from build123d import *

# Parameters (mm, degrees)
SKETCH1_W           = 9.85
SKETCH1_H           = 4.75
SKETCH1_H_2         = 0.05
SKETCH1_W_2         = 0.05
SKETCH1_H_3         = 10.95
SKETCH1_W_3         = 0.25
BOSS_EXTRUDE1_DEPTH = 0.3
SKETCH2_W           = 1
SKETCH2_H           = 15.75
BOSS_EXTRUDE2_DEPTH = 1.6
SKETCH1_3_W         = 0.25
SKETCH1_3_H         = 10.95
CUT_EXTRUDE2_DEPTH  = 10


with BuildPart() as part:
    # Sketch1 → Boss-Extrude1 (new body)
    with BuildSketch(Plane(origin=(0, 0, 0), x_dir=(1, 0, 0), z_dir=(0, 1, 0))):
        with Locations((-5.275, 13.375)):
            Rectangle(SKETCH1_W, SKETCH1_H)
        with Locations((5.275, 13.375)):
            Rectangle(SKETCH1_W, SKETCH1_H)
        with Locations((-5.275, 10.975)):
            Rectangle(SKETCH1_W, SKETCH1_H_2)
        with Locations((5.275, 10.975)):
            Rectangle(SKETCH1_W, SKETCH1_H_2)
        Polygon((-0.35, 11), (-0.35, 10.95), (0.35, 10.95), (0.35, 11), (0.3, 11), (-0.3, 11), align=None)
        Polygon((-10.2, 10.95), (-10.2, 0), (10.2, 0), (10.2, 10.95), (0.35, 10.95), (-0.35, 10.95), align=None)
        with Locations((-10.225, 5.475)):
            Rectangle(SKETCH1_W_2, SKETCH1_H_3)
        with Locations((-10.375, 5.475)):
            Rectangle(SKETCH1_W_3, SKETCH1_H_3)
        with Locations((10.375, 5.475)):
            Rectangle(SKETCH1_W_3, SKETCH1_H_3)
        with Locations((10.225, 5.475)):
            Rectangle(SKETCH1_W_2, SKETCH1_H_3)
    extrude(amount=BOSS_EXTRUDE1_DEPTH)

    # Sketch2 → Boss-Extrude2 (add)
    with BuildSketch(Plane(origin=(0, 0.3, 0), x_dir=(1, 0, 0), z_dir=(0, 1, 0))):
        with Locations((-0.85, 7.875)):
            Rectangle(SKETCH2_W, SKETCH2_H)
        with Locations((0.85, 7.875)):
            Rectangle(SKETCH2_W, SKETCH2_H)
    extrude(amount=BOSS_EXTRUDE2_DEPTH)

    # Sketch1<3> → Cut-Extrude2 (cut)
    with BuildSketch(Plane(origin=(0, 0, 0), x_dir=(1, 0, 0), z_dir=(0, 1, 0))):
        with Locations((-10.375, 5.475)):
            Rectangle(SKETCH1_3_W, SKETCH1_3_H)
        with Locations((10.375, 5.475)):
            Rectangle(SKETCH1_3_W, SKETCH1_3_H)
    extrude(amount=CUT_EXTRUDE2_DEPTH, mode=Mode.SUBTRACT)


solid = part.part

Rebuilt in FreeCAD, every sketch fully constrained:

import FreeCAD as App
import Part
import Sketcher
from FreeCAD import Vector
Q = App.Units.Quantity

doc = App.newDocument("Part")
body = doc.addObject("PartDesign::Body", "Body")

sketch1 = body.newObject("Sketcher::SketchObject", "Sketch")
sketch1.AttachmentSupport = (doc.getObject("XZ_Plane"), [""])
sketch1.MapMode = "FlatFace"
sketch1.addGeometry(Part.LineSegment(Vector(-10.2, -15.75, 0), Vector(-10.2, -10.95, 0)), False)
sketch1.addGeometry(Part.LineSegment(Vector(-10.2, -10.95, 0), Vector(-10.5, -10.95, 0)), False)
sketch1.addGeometry(Part.LineSegment(Vector(-10.5, -10.95, 0), Vector(-10.5, 0, 0)), False)
sketch1.addGeometry(Part.LineSegment(Vector(-10.5, 0, 0), Vector(10.5, 0, 0)), False)
sketch1.addGeometry(Part.LineSegment(Vector(10.5, 0, 0), Vector(10.5, -10.95, 0)), False)
sketch1.addGeometry(Part.LineSegment(Vector(10.5, -10.95, 0), Vector(10.2, -10.95, 0)), False)
sketch1.addGeometry(Part.LineSegment(Vector(10.2, -10.95, 0), Vector(10.2, -15.75, 0)), False)
sketch1.addGeometry(Part.LineSegment(Vector(10.2, -15.75, 0), Vector(0.35, -15.75, 0)), False)
sketch1.addGeometry(Part.LineSegment(Vector(0.35, -15.75, 0), Vector(0.35, -11, 0)), False)
sketch1.addGeometry(Part.LineSegment(Vector(0.35, -11, 0), Vector(-0.35, -11, 0)), False)
sketch1.addGeometry(Part.LineSegment(Vector(-0.35, -11, 0), Vector(-0.35, -15.75, 0)), False)
sketch1.addGeometry(Part.LineSegment(Vector(-0.35, -15.75, 0), Vector(-10.2, -15.75, 0)), False)
sketch1.addConstraint(Sketcher.Constraint("Coincident", 0, 2, 1, 1))
sketch1.addConstraint(Sketcher.Constraint("Coincident", 1, 2, 2, 1))
sketch1.addConstraint(Sketcher.Constraint("Coincident", 2, 2, 3, 1))
sketch1.addConstraint(Sketcher.Constraint("Coincident", 3, 2, 4, 1))
sketch1.addConstraint(Sketcher.Constraint("Coincident", 4, 2, 5, 1))
sketch1.addConstraint(Sketcher.Constraint("Coincident", 5, 2, 6, 1))
sketch1.addConstraint(Sketcher.Constraint("Coincident", 6, 2, 7, 1))
sketch1.addConstraint(Sketcher.Constraint("Coincident", 7, 2, 8, 1))
sketch1.addConstraint(Sketcher.Constraint("Coincident", 8, 2, 9, 1))
sketch1.addConstraint(Sketcher.Constraint("Coincident", 9, 2, 10, 1))
sketch1.addConstraint(Sketcher.Constraint("Coincident", 10, 2, 11, 1))
sketch1.addConstraint(Sketcher.Constraint("Coincident", 11, 2, 0, 1))
sketch1.addConstraint(Sketcher.Constraint("Vertical", 0))
sketch1.addConstraint(Sketcher.Constraint("Horizontal", 1))
sketch1.addConstraint(Sketcher.Constraint("Vertical", 2))
sketch1.addConstraint(Sketcher.Constraint("Horizontal", 3))
sketch1.addConstraint(Sketcher.Constraint("Vertical", 4))
sketch1.addConstraint(Sketcher.Constraint("Horizontal", 5))
sketch1.addConstraint(Sketcher.Constraint("Vertical", 6))
sketch1.addConstraint(Sketcher.Constraint("Horizontal", 7))
sketch1.addConstraint(Sketcher.Constraint("Vertical", 8))
sketch1.addConstraint(Sketcher.Constraint("Horizontal", 9))
sketch1.addConstraint(Sketcher.Constraint("Vertical", 10))
sketch1.addConstraint(Sketcher.Constraint("Horizontal", 11))
sketch1.addConstraint(Sketcher.Constraint("Symmetric", 2, 2, 3, 2, -1, 1))
sketch1.addConstraint(Sketcher.Constraint("Symmetric", 0, 2, 5, 2, -2))
sketch1.addConstraint(Sketcher.Constraint("Symmetric", 7, 2, 10, 2, -2))
sketch1.addConstraint(Sketcher.Constraint("DistanceX", 3, 1, 3, 2, Q("21 mm")))
sketch1.addConstraint(Sketcher.Constraint("DistanceX", 1, 2, 1, 1, Q("0.3 mm")))
sketch1.addConstraint(Sketcher.Constraint("DistanceX", 9, 2, 9, 1, Q("0.7 mm")))
sketch1.addConstraint(Sketcher.Constraint("DistanceY", 0, 1, 0, 2, Q("4.8 mm")))
sketch1.addConstraint(Sketcher.Constraint("DistanceY", 8, 2, -1, 1, Q("11 mm")))
sketch1.addConstraint(Sketcher.Constraint("DistanceY", 2, 1, 2, 2, Q("10.95 mm")))
pad1 = body.newObject("PartDesign::Pad", "Pad")
pad1.Profile = sketch1
pad1.Length = 0.3
pad1.Reversed = True

sketch2 = body.newObject("Sketcher::SketchObject", "Sketch001")
sketch2.AttachmentSupport = (doc.getObject("XZ_Plane"), [""])
sketch2.MapMode = "FlatFace"
sketch2.AttachmentOffset = App.Placement(Vector(0, 0, -0.3), App.Rotation())
sketch2.addGeometry(Part.LineSegment(Vector(-1.35, -15.75, 0), Vector(-1.35, 0, 0)), False)
sketch2.addGeometry(Part.LineSegment(Vector(-1.35, 0, 0), Vector(-0.35, 0, 0)), False)
sketch2.addGeometry(Part.LineSegment(Vector(-0.35, 0, 0), Vector(-0.35, -15.75, 0)), False)
sketch2.addGeometry(Part.LineSegment(Vector(-0.35, -15.75, 0), Vector(-1.35, -15.75, 0)), False)
sketch2.addGeometry(Part.LineSegment(Vector(0.35, -15.75, 0), Vector(0.35, 0, 0)), False)
sketch2.addGeometry(Part.LineSegment(Vector(0.35, 0, 0), Vector(1.35, 0, 0)), False)
sketch2.addGeometry(Part.LineSegment(Vector(1.35, 0, 0), Vector(1.35, -15.75, 0)), False)
sketch2.addGeometry(Part.LineSegment(Vector(1.35, -15.75, 0), Vector(0.35, -15.75, 0)), False)
sketch2.addConstraint(Sketcher.Constraint("Coincident", 0, 2, 1, 1))
sketch2.addConstraint(Sketcher.Constraint("Coincident", 1, 2, 2, 1))
sketch2.addConstraint(Sketcher.Constraint("Coincident", 2, 2, 3, 1))
sketch2.addConstraint(Sketcher.Constraint("Coincident", 3, 2, 0, 1))
sketch2.addConstraint(Sketcher.Constraint("Coincident", 4, 2, 5, 1))
sketch2.addConstraint(Sketcher.Constraint("Coincident", 5, 2, 6, 1))
sketch2.addConstraint(Sketcher.Constraint("Coincident", 6, 2, 7, 1))
sketch2.addConstraint(Sketcher.Constraint("Coincident", 7, 2, 4, 1))
sketch2.addConstraint(Sketcher.Constraint("Vertical", 0))
sketch2.addConstraint(Sketcher.Constraint("Horizontal", 1))
sketch2.addConstraint(Sketcher.Constraint("Vertical", 2))
sketch2.addConstraint(Sketcher.Constraint("Horizontal", 3))
sketch2.addConstraint(Sketcher.Constraint("Vertical", 4))
sketch2.addConstraint(Sketcher.Constraint("Horizontal", 5))
sketch2.addConstraint(Sketcher.Constraint("Vertical", 6))
sketch2.addConstraint(Sketcher.Constraint("Horizontal", 7))
sketch2.addConstraint(Sketcher.Constraint("Symmetric", 1, 2, 4, 2, -1, 1))
sketch2.addConstraint(Sketcher.Constraint("Symmetric", 0, 2, 5, 2, -2))
sketch2.addConstraint(Sketcher.Constraint("Horizontal", 3, 2, 6, 2))
sketch2.addConstraint(Sketcher.Constraint("DistanceX", 1, 1, 1, 2, Q("1 mm")))
sketch2.addConstraint(Sketcher.Constraint("DistanceY", 0, 1, 0, 2, Q("15.75 mm")))
sketch2.addConstraint(Sketcher.Constraint("DistanceX", 1, 2, 4, 2, Q("0.7 mm")))
pad2 = body.newObject("PartDesign::Pad", "Pad001")
pad2.Profile = sketch2
pad2.Length = 1.6
pad2.Reversed = True

sketch3 = body.newObject("Sketcher::SketchObject", "Sketch002")
sketch3.AttachmentSupport = (doc.getObject("XZ_Plane"), [""])
sketch3.MapMode = "FlatFace"
sketch3.addGeometry(Part.LineSegment(Vector(-10.5, -10.95, 0), Vector(-10.5, 0, 0)), False)
sketch3.addGeometry(Part.LineSegment(Vector(-10.5, 0, 0), Vector(-10.25, 0, 0)), False)
sketch3.addGeometry(Part.LineSegment(Vector(-10.25, 0, 0), Vector(-10.25, -10.95, 0)), False)
sketch3.addGeometry(Part.LineSegment(Vector(-10.25, -10.95, 0), Vector(-10.5, -10.95, 0)), False)
sketch3.addGeometry(Part.LineSegment(Vector(10.25, -10.95, 0), Vector(10.25, 0, 0)), False)
sketch3.addGeometry(Part.LineSegment(Vector(10.25, 0, 0), Vector(10.5, 0, 0)), False)
sketch3.addGeometry(Part.LineSegment(Vector(10.5, 0, 0), Vector(10.5, -10.95, 0)), False)
sketch3.addGeometry(Part.LineSegment(Vector(10.5, -10.95, 0), Vector(10.25, -10.95, 0)), False)
sketch3.addConstraint(Sketcher.Constraint("Coincident", 0, 2, 1, 1))
sketch3.addConstraint(Sketcher.Constraint("Coincident", 1, 2, 2, 1))
sketch3.addConstraint(Sketcher.Constraint("Coincident", 2, 2, 3, 1))
sketch3.addConstraint(Sketcher.Constraint("Coincident", 3, 2, 0, 1))
sketch3.addConstraint(Sketcher.Constraint("Coincident", 4, 2, 5, 1))
sketch3.addConstraint(Sketcher.Constraint("Coincident", 5, 2, 6, 1))
sketch3.addConstraint(Sketcher.Constraint("Coincident", 6, 2, 7, 1))
sketch3.addConstraint(Sketcher.Constraint("Coincident", 7, 2, 4, 1))
sketch3.addConstraint(Sketcher.Constraint("Vertical", 0))
sketch3.addConstraint(Sketcher.Constraint("Horizontal", 1))
sketch3.addConstraint(Sketcher.Constraint("Vertical", 2))
sketch3.addConstraint(Sketcher.Constraint("Horizontal", 3))
sketch3.addConstraint(Sketcher.Constraint("Vertical", 4))
sketch3.addConstraint(Sketcher.Constraint("Horizontal", 5))
sketch3.addConstraint(Sketcher.Constraint("Vertical", 6))
sketch3.addConstraint(Sketcher.Constraint("Horizontal", 7))
sketch3.addConstraint(Sketcher.Constraint("Symmetric", 1, 2, 4, 2, -1, 1))
sketch3.addConstraint(Sketcher.Constraint("Symmetric", 0, 2, 5, 2, -2))
sketch3.addConstraint(Sketcher.Constraint("Horizontal", 3, 2, 6, 2))
sketch3.addConstraint(Sketcher.Constraint("DistanceX", 0, 2, 5, 2, Q("21 mm")))
sketch3.addConstraint(Sketcher.Constraint("DistanceX", 1, 1, 1, 2, Q("0.25 mm")))
sketch3.addConstraint(Sketcher.Constraint("DistanceY", 0, 1, 0, 2, Q("10.95 mm")))
pocket1 = body.newObject("PartDesign::Pocket", "Pocket")
pocket1.Profile = sketch3
pocket1.Length = 10

doc.recompute()
